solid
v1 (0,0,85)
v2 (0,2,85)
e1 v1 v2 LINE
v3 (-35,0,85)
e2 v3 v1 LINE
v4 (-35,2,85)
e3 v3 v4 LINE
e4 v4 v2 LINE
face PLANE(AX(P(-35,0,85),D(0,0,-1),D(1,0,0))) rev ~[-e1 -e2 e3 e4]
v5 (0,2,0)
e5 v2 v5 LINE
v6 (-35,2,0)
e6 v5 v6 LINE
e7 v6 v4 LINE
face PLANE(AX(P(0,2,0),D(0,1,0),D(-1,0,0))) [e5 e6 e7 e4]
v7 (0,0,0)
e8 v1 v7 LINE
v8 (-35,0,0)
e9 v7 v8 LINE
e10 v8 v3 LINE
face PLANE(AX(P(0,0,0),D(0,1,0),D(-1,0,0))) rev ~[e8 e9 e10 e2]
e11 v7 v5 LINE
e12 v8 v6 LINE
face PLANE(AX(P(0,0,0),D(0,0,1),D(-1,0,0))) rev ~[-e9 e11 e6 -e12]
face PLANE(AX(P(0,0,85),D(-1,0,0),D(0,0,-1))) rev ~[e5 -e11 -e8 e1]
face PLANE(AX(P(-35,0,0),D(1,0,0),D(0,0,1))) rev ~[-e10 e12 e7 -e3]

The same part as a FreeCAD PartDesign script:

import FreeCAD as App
import Part
import Sketcher
from FreeCAD import Vector


def add_polygon(sketch, points):
    """Adds a closed chain of lines whose ends are joined by coincident constraints."""
    first, n = sketch.GeometryCount, len(points)
    for a, b in zip(points, points[1:] + points[:1]):
        sketch.addGeometry(Part.LineSegment(App.Vector(*a, 0), App.Vector(*b, 0)), False)
    for i in range(n):
        sketch.addConstraint(Sketcher.Constraint("Coincident", first + i, 2, first + (i + 1) % n, 1))

doc = App.newDocument("Part")
body = doc.addObject("PartDesign::Body", "Body")

sketch1 = doc.addObject("Sketcher::SketchObject", "Sketch")
body.addObject(sketch1)
sketch1.AttachmentSupport = (doc.XZ_Plane, [""])
sketch1.MapMode = "FlatFace"
add_polygon(sketch1, [(0, 85), (0, 0), (-35, 0), (-35, 85)])
sketch1.addConstraint([
    Sketcher.Constraint("Vertical", 0),
    Sketcher.Constraint("Horizontal", 1),
    Sketcher.Constraint("Vertical", 2),
    Sketcher.Constraint("Horizontal", 3),
    Sketcher.Constraint("Coincident", 0, 2, -1, 1),
    Sketcher.Constraint("DistanceX", 1, 2, 1, 1, 35.0),
    Sketcher.Constraint("DistanceY", 0, 2, 0, 1, 85.0),
])
pad1 = doc.addObject("PartDesign::Pad", "Pad")
body.addObject(pad1)
pad1.Profile = sketch1
pad1.Length = 2
pad1.Reversed = True

doc.recompute()
